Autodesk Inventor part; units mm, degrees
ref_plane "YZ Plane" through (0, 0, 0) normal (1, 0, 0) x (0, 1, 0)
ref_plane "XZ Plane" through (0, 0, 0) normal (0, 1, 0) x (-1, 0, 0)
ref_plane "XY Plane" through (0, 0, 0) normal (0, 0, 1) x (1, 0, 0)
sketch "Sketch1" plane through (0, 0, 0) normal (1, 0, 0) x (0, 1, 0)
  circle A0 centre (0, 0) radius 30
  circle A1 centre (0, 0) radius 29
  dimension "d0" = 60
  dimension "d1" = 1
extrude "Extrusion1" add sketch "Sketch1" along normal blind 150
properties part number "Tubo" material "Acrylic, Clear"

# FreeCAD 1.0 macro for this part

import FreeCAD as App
import Part
import Sketcher
from FreeCAD import Vector
Q = App.Units.Quantity

doc = App.newDocument("Part")
params = doc.addObject("Spreadsheet::Sheet", "Params")
for row, (alias, value) in enumerate([
    ("sketch1_diameter", "60 mm"),
    ("sketch1_diameter2", "58 mm"),
    ("pad1_length", "150 mm"),
], start=1):
    params.set(f"A{row}", alias)
    params.set(f"B{row}", "=" + value)
    params.setAlias(f"B{row}", alias)

body = doc.addObject("PartDesign::Body", "Body")

sketch1 = doc.addObject("Sketcher::SketchObject", "Sketch")
body.addObject(sketch1)
sketch1.AttachmentSupport = (doc.YZ_Plane, [""])
sketch1.MapMode = "FlatFace"
sketch1.addGeometry([
    Part.Circle(Vector(0, 0, 0), Vector(0, 0, 1), 30),
    Part.Circle(Vector(0, 0, 0), Vector(0, 0, 1), 29),
], False)
sketch1.addConstraint([
    Sketcher.Constraint("Coincident", 0, 3, -1, 1),
    Sketcher.Constraint("Coincident", 1, 3, -1, 1),
    Sketcher.Constraint("Diameter", 0, Q("60 mm")),
    Sketcher.Constraint("Diameter", 1, Q("58 mm")),
])
sketch1.setExpression("Constraints[2]", "Params.sketch1_diameter")
sketch1.setExpression("Constraints[3]", "Params.sketch1_diameter2")
pad1 = doc.addObject("PartDesign::Pad", "Pad")
body.addObject(pad1)
pad1.Profile = sketch1
pad1.setExpression("Length", "Params.pad1_length")

doc.recompute()
